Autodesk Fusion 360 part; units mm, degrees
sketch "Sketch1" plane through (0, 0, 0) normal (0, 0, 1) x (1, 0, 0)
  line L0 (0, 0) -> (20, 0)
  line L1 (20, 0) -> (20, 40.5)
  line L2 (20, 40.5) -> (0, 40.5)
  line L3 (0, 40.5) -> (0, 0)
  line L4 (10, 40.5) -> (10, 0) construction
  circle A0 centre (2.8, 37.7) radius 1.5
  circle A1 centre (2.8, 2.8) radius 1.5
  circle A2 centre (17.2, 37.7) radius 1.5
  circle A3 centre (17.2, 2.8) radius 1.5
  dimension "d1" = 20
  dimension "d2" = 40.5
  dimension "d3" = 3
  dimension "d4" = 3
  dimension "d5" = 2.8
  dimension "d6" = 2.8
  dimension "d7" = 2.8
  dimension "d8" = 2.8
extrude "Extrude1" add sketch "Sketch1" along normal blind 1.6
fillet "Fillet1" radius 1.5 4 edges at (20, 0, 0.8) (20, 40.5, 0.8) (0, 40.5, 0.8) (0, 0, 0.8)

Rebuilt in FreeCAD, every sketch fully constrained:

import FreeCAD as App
import Part
import Sketcher

V = App.Vector
Q = App.Units.Quantity


def edges_at(feature, points):
    """Names of the edges that pass closest to the given points."""
    edges = feature.Shape.Edges
    near = lambda p: min(range(len(edges)), key=lambda i: edges[i].distToShape(Part.Vertex(*p))[0])
    return sorted({f"Edge{near(p) + 1}" for p in points})

doc = App.newDocument("Part")
params = doc.addObject("Spreadsheet::Sheet", "Params")
for row, (alias, value) in enumerate([
    ("sketch1_diameter", "3 mm"),
    ("sketch1_width", "20 mm"),
    ("sketch1_height", "40.5 mm"),
    ("pad1_length", "1.6 mm"),
    ("fillet_radius", "1.5 mm"),
], start=1):
    params.set(f"A{row}", alias)
    params.set(f"B{row}", "=" + value)
    params.setAlias(f"B{row}", alias)

body = doc.addObject("PartDesign::Body", "Body")

# Sketch on XY plane
sketch1 = body.newObject("Sketcher::SketchObject", "Sketch")
sketch1.AttachmentSupport = (doc.getObject("XY_Plane"), [""])
sketch1.MapMode = "FlatFace"
sketch1.addGeometry(Part.LineSegment(V(0, 40.5, 0), V(0, 0, 0)), False)
sketch1.addGeometry(Part.LineSegment(V(0, 0, 0), V(20, 0, 0)), False)
sketch1.addGeometry(Part.LineSegment(V(20, 0, 0), V(20, 40.5, 0)), False)
sketch1.addGeometry(Part.LineSegment(V(20, 40.5, 0), V(0, 40.5, 0)), False)
sketch1.addGeometry(Part.Circle(V(2.8, 2.8, 0), V(0, 0, 1), 1.5), False)
sketch1.addGeometry(Part.Circle(V(17.2, 2.8, 0), V(0, 0, 1), 1.5), False)
sketch1.addGeometry(Part.Circle(V(2.8, 37.7, 0), V(0, 0, 1), 1.5), False)
sketch1.addGeometry(Part.Circle(V(17.2, 37.7, 0), V(0, 0, 1), 1.5), False)
sketch1.addConstraint(Sketcher.Constraint("Coincident", 0, 2, 1, 1))
sketch1.addConstraint(Sketcher.Constraint("Coincident", 1, 2, 2, 1))
sketch1.addConstraint(Sketcher.Constraint("Coincident", 2, 2, 3, 1))
sketch1.addConstraint(Sketcher.Constraint("Coincident", 3, 2, 0, 1))
sketch1.addConstraint(Sketcher.Constraint("Vertical", 0))
sketch1.addConstraint(Sketcher.Constraint("Horizontal", 1))
sketch1.addConstraint(Sketcher.Constraint("Vertical", 2))
sketch1.addConstraint(Sketcher.Constraint("Horizontal", 3))
sketch1.addConstraint(Sketcher.Constraint("Coincident", 0, 2, -1, 1))
sketch1.addConstraint(Sketcher.Constraint("Equal", 4, 5))
sketch1.addConstraint(Sketcher.Constraint("Equal", 5, 6))
sketch1.addConstraint(Sketcher.Constraint("Equal", 6, 7))
sketch1.addConstraint(Sketcher.Constraint("Horizontal", 4, 3, 5, 3))
sketch1.addConstraint(Sketcher.Constraint("Horizontal", 6, 3, 7, 3))
sketch1.addConstraint(Sketcher.Constraint("Vertical", 4, 3, 6, 3))
sketch1.addConstraint(Sketcher.Constraint("Vertical", 5, 3, 7, 3))
sketch1.addConstraint(Sketcher.Constraint("Diameter", 4, Q("3 mm")))
sketch1.addConstraint(Sketcher.Constraint("DistanceX", 1, 1, 1, 2, Q("20 mm")))
sketch1.addConstraint(Sketcher.Constraint("DistanceY", 0, 2, 0, 1, Q("40.5 mm")))
sketch1.addConstraint(Sketcher.Constraint("DistanceX", -1, 1, 4, 3, Q("2.8 mm")))
sketch1.addConstraint(Sketcher.Constraint("DistanceY", -1, 1, 4, 3, Q("2.8 mm")))
sketch1.addConstraint(Sketcher.Constraint("DistanceX", 5, 3, 1, 2, Q("2.8 mm")))
sketch1.addConstraint(Sketcher.Constraint("DistanceY", 7, 3, 2, 2, Q("2.8 mm")))
sketch1.setExpression("Constraints[16]", "Params.sketch1_diameter")
sketch1.setExpression("Constraints[17]", "Params.sketch1_width")
sketch1.setExpression("Constraints[18]", "Params.sketch1_height")
pad1 = body.newObject("PartDesign::Pad", "Pad")
pad1.Profile = sketch1
pad1.setExpression("Length", "Params.pad1_length")
doc.recompute()

fillet = body.newObject("PartDesign::Fillet", "Fillet")
fillet.Base = (pad1, edges_at(pad1, [
    (20, 0, 0.8),
    (20, 40.5, 0.8),
    (0, 40.5, 0.8),
    (0, 0, 0.8),
]))
fillet.setExpression("Radius", "Params.fillet_radius")

doc.recompute()
